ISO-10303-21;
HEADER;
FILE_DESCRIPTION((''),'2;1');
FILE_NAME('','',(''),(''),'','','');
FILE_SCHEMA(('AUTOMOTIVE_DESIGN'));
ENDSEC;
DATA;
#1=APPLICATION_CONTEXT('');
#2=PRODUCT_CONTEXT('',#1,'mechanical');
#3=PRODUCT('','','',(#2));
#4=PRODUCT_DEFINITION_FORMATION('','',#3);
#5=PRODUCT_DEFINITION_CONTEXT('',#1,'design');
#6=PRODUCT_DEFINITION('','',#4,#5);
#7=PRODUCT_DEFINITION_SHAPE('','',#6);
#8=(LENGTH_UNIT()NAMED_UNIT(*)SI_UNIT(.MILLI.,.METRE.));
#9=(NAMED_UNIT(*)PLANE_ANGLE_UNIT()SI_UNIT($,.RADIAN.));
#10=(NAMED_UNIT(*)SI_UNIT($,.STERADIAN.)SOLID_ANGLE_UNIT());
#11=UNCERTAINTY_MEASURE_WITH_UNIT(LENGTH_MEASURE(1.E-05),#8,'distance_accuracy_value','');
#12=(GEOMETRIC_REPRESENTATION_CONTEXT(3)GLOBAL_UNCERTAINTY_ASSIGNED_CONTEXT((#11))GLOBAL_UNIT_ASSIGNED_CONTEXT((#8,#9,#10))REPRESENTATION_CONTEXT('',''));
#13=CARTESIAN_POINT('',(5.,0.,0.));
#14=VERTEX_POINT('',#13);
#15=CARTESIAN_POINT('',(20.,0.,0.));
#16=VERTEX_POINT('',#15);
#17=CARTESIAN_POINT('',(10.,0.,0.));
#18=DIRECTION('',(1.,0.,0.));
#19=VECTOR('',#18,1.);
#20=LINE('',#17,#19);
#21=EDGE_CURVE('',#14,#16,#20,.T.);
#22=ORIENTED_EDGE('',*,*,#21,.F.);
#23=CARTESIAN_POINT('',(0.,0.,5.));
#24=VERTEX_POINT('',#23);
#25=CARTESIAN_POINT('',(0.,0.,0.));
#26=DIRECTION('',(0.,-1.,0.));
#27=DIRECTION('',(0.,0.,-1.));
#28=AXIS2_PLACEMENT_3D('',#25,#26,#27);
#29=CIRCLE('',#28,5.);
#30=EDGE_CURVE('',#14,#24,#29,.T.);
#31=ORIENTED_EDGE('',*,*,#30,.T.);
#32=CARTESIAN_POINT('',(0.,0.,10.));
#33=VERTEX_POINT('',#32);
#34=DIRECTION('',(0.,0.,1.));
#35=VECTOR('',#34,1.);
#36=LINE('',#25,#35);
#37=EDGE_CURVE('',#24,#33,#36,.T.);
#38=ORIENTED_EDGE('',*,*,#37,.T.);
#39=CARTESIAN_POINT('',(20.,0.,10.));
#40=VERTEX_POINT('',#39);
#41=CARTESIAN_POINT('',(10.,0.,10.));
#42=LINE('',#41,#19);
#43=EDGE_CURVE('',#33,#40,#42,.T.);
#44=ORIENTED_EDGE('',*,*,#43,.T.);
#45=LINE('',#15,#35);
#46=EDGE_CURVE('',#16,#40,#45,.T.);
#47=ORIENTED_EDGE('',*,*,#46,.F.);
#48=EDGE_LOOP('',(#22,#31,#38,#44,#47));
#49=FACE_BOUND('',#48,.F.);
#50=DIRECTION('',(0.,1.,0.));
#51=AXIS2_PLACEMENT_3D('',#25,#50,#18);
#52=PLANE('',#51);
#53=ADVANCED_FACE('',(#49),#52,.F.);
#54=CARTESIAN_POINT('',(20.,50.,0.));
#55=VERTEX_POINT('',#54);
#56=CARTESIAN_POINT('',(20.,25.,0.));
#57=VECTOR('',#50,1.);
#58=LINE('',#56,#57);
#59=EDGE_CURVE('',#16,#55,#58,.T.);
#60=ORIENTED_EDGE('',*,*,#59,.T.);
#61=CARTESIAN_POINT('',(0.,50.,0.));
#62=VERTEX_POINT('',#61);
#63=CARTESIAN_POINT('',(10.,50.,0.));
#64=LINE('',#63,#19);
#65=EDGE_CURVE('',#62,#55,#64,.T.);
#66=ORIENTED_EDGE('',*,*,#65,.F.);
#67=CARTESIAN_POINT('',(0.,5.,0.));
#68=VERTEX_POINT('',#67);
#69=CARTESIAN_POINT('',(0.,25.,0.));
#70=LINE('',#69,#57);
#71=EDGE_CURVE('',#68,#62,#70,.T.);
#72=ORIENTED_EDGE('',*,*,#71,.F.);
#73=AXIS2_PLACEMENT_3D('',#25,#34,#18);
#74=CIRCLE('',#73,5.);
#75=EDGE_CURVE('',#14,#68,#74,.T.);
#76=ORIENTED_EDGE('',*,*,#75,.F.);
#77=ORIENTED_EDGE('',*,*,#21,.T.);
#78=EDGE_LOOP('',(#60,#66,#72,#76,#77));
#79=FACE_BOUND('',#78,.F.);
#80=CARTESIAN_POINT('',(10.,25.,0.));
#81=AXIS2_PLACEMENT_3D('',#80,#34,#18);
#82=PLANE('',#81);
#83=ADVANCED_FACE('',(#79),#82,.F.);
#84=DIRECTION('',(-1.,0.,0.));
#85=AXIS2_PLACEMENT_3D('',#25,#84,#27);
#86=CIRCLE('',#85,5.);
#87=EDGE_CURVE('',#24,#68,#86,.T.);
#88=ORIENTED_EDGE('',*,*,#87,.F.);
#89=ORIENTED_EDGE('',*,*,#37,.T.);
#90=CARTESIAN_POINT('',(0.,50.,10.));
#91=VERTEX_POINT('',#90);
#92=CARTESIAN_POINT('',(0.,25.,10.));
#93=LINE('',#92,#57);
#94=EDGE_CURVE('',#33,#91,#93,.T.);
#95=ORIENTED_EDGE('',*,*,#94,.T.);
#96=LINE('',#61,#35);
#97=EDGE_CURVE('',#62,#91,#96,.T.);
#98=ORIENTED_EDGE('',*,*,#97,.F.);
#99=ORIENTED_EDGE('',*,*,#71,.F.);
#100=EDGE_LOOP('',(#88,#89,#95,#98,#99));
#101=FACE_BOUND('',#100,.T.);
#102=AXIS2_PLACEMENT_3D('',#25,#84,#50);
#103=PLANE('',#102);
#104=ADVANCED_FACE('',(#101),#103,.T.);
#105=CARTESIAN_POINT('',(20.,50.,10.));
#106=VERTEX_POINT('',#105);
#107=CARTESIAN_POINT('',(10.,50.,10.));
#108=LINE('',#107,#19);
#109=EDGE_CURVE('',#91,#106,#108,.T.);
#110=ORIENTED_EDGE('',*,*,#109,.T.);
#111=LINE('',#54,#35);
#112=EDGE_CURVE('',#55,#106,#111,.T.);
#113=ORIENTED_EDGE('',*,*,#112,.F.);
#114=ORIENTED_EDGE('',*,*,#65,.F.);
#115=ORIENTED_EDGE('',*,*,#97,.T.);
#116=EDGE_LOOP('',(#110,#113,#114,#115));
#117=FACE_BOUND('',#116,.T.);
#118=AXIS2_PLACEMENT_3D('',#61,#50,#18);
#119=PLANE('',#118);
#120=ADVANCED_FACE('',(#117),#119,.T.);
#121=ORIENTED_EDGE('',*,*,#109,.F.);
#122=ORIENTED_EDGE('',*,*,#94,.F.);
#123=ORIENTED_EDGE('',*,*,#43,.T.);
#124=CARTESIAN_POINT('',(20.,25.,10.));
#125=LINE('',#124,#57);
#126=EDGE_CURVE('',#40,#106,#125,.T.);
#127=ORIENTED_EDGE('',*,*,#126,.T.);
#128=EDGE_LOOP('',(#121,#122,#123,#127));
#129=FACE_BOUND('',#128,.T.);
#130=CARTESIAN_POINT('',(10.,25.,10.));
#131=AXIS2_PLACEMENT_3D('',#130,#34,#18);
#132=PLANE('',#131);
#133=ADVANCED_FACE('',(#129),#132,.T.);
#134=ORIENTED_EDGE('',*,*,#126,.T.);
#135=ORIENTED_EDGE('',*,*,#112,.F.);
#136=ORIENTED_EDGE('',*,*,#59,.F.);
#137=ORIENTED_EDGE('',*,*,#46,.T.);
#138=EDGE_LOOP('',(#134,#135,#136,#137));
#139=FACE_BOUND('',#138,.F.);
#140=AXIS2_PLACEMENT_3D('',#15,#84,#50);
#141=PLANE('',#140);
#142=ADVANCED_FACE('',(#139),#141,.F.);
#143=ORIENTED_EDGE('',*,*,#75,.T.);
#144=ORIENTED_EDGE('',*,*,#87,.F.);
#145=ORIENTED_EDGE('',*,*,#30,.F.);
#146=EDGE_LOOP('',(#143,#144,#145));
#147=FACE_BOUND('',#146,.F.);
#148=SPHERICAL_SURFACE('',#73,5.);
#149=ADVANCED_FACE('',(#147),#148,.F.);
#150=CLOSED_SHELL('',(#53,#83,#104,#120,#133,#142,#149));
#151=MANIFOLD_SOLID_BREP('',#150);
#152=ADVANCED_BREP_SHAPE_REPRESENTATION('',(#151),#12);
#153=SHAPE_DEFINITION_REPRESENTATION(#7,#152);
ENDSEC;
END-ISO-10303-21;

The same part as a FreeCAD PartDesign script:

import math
import FreeCAD as App
import Part
import Sketcher

V = App.Vector
Q = App.Units.Quantity

doc = App.newDocument("Part")
body = doc.addObject("PartDesign::Body", "Body")

sketch1 = body.newObject("Sketcher::SketchObject", "Sketch")
sketch1.AttachmentSupport = (doc.getObject("XZ_Plane"), [""])
sketch1.MapMode = "FlatFace"
sketch1.addGeometry([
    Part.ArcOfCircle(Part.Circle(V(0, 0, 0), V(0, 0, 1), 5), math.radians(-90), math.radians(90)),
    Part.LineSegment(V(0, 5, 0), V(0, -5, 0)),
], False)
sketch1.addConstraint([
    Sketcher.Constraint("Coincident", 0, 1, 1, 2),
    Sketcher.Constraint("Coincident", 1, 1, 0, 2),
    Sketcher.Constraint("Vertical", 1),
    Sketcher.Constraint("Coincident", 0, 3, -1, 1),
    Sketcher.Constraint("PointOnObject", 0, 1, -2),
    Sketcher.Constraint("Radius", 0, Q("5 mm")),
])
revolution = body.newObject("PartDesign::Revolution", "Revolution")
revolution.Profile = sketch1
revolution.ReferenceAxis = (sketch1, ["V_Axis"])
revolution.Angle = 360
body2 = doc.addObject("PartDesign::Body", "Body001")

sketch2 = body2.newObject("Sketcher::SketchObject", "Sketch001")
sketch2.AttachmentSupport = (doc.getObject("XY_Plane001"), [""])
sketch2.MapMode = "FlatFace"
sketch2.addGeometry([
    Part.LineSegment(V(0, 50, 0), V(0, 0, 0)),
    Part.LineSegment(V(0, 0, 0), V(20, 0, 0)),
    Part.LineSegment(V(20, 0, 0), V(20, 50, 0)),
    Part.LineSegment(V(20, 50, 0), V(0, 50, 0)),
], False)
sketch2.addConstraint([
    Sketcher.Constraint("Coincident", 0, 2, 1, 1),
    Sketcher.Constraint("Coincident", 1, 2, 2, 1),
    Sketcher.Constraint("Coincident", 2, 2, 3, 1),
    Sketcher.Constraint("Coincident", 3, 2, 0, 1),
    Sketcher.Constraint("Vertical", 0),
    Sketcher.Constraint("Horizontal", 1),
    Sketcher.Constraint("Vertical", 2),
    Sketcher.Constraint("Horizontal", 3),
    Sketcher.Constraint("Coincident", 0, 2, -1, 1),
    Sketcher.Constraint("DistanceX", 1, 1, 1, 2, Q("20 mm")),
    Sketcher.Constraint("DistanceY", 0, 2, 0, 1, Q("50 mm")),
])
pad1 = body2.newObject("PartDesign::Pad", "Pad")
pad1.Profile = sketch2
pad1.Length = 10
doc.recompute()

boolean = body2.newObject("PartDesign::Boolean", "Boolean")
boolean.Type = "Cut"
boolean.addObjects([body])

doc.recompute()
